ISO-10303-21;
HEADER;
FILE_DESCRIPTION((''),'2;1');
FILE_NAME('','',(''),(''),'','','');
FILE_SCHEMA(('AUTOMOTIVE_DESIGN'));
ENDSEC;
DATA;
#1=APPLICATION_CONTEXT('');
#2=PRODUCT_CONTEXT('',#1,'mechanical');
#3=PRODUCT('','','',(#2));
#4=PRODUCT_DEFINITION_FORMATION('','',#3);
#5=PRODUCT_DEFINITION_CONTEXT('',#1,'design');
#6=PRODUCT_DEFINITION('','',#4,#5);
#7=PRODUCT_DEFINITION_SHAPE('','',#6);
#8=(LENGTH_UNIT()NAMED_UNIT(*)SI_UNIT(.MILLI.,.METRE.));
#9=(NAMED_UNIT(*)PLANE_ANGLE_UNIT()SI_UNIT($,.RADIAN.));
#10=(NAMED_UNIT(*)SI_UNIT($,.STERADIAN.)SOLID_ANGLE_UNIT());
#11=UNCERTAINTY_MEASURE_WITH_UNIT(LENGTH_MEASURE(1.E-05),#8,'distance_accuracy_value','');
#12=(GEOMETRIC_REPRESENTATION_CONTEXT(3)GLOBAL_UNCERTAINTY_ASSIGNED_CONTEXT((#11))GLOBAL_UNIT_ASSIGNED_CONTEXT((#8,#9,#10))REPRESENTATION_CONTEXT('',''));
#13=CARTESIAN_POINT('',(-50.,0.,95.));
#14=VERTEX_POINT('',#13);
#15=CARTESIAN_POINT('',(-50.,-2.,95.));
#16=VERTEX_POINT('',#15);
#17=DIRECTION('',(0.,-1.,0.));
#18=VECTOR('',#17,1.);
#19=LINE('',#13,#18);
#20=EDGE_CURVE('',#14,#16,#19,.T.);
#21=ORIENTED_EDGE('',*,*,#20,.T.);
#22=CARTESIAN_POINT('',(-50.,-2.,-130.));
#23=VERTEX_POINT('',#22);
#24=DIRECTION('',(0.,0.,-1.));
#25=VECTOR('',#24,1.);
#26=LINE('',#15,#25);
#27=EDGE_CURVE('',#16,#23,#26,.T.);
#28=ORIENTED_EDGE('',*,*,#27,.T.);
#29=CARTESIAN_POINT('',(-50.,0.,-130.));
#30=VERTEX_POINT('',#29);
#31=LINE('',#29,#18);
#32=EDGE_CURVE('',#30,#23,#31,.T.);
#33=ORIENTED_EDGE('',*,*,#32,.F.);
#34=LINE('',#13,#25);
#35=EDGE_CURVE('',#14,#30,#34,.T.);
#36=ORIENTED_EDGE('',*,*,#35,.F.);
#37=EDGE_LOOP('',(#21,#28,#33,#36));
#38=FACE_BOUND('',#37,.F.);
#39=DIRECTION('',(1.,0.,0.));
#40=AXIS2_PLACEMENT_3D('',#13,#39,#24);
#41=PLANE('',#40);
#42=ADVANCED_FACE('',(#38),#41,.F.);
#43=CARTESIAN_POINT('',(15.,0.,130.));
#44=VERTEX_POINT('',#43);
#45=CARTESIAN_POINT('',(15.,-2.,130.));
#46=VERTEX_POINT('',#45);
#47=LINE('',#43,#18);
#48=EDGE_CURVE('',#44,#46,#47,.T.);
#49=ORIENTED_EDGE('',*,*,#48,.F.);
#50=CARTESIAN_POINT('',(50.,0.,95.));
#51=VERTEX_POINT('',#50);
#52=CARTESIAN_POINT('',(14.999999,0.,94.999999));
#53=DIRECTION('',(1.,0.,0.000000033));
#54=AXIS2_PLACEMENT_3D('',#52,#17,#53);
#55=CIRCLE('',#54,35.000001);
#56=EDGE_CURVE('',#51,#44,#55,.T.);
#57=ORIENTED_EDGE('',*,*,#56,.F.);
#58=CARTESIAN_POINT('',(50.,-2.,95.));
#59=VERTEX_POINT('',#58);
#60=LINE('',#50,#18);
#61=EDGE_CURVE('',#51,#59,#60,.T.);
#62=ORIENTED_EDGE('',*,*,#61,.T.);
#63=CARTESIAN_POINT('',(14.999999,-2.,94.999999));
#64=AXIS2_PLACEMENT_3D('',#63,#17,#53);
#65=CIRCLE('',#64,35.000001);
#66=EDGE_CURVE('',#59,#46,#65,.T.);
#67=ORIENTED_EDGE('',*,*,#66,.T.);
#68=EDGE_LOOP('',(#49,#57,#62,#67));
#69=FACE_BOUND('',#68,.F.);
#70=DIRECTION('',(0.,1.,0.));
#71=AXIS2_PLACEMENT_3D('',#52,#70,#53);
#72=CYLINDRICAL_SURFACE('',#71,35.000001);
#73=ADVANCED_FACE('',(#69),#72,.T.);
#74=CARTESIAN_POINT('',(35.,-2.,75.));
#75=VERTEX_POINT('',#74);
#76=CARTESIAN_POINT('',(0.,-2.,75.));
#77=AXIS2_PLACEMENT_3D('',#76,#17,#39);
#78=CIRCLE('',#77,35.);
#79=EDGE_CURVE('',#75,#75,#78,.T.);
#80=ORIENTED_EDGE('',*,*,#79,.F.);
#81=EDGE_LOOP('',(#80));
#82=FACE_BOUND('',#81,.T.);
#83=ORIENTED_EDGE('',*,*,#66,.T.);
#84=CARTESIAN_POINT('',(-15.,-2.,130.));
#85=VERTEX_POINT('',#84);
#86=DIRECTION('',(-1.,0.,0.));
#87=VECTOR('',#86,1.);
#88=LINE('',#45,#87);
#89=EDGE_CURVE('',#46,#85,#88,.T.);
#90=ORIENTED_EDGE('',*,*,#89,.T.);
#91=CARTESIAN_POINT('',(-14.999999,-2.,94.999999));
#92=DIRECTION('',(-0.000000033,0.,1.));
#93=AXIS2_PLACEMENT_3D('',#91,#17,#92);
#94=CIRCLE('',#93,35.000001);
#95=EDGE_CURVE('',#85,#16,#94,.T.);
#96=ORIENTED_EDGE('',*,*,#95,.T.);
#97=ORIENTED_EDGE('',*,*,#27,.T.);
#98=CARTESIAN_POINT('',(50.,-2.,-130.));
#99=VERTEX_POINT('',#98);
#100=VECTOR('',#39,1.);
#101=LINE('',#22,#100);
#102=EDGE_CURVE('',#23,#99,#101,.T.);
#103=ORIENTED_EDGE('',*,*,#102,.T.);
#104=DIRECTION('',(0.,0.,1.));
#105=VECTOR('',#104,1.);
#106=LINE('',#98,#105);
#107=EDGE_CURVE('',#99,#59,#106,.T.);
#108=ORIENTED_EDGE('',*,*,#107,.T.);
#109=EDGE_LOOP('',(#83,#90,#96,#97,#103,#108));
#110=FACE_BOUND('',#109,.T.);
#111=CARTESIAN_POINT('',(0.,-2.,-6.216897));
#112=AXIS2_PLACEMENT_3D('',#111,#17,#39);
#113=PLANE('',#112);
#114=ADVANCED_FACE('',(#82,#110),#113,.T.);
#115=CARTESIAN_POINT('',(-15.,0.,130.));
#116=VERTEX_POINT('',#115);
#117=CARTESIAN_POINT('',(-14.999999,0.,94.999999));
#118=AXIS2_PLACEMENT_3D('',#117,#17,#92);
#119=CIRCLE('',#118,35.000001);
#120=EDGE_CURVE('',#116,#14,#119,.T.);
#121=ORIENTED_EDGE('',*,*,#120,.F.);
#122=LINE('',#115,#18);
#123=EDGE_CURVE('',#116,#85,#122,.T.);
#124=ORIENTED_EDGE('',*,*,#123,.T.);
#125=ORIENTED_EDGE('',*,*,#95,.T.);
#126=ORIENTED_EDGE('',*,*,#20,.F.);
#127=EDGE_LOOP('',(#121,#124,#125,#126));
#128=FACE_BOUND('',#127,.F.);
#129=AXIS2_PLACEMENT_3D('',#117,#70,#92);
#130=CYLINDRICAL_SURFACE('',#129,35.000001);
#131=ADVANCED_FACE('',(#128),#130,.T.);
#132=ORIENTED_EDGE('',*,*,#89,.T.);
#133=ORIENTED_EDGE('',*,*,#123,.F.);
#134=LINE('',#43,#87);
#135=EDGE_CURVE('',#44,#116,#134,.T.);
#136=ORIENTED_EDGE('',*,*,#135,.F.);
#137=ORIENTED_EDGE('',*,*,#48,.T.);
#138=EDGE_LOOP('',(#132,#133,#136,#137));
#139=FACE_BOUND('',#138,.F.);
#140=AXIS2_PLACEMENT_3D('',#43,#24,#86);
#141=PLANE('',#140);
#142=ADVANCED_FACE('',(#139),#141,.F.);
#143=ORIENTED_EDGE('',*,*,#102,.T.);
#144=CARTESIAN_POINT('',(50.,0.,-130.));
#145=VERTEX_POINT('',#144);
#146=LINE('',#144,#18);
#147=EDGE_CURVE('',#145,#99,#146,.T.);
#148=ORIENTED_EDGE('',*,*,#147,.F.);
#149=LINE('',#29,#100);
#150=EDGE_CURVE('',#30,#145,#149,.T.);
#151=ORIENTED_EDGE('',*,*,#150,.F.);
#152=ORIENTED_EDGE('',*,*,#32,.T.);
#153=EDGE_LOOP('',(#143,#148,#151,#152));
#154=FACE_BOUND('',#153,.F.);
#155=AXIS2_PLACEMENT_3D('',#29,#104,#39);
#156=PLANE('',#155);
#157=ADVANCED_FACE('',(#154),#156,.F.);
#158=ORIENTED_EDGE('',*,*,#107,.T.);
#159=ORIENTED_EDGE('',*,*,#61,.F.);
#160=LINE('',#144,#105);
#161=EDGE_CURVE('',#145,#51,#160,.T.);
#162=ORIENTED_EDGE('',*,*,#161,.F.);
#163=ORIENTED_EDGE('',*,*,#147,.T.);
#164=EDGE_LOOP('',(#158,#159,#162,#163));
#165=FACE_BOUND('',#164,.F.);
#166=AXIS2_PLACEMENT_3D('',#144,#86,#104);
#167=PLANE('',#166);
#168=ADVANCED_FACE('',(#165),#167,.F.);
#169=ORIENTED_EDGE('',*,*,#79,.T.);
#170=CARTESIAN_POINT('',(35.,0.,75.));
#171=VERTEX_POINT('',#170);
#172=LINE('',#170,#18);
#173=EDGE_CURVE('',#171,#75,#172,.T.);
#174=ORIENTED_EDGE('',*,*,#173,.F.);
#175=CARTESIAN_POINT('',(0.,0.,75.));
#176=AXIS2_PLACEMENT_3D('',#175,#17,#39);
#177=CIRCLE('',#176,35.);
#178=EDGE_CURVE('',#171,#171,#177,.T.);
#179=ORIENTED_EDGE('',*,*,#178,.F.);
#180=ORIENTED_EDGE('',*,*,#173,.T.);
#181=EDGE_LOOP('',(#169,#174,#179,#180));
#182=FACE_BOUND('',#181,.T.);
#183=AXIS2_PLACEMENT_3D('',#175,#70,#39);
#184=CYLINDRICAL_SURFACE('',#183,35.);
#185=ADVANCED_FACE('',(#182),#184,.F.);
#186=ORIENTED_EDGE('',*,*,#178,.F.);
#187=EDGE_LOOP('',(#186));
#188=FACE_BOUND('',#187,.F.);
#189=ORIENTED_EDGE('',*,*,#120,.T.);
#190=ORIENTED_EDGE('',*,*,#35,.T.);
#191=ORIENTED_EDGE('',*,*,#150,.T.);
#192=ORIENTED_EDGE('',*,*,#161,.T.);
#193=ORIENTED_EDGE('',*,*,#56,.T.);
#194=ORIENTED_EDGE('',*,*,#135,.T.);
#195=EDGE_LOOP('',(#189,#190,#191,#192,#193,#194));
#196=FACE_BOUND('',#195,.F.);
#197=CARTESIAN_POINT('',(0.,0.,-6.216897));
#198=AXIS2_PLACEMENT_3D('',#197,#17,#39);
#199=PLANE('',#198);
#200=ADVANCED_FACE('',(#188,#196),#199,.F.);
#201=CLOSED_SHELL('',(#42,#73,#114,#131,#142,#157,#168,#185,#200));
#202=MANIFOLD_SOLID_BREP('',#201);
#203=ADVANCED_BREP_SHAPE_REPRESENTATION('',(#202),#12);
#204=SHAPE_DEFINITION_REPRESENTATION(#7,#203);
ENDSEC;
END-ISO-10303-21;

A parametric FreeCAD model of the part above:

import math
import FreeCAD as App
import Part
import Sketcher
Q = App.Units.Quantity

doc = App.newDocument("Part")
body = doc.addObject("PartDesign::Body", "Body")

# Sketch on XZ plane
sketch1 = body.newObject("Sketcher::SketchObject", "Sketch")
sketch1.AttachmentSupport = (doc.getObject("XZ_Plane"), [""])
sketch1.MapMode = "FlatFace"
sketch1.addGeometry([
    Part.LineSegment(App.Vector(15, 130, 0), App.Vector(-15, 130, 0)),  # 0
    Part.ArcOfCircle(Part.Circle(App.Vector(-15, 95, 0), App.Vector(0, 0, 1), 35), math.radians(90), math.radians(180)),  # 1
    Part.LineSegment(App.Vector(-50, 95, 0), App.Vector(-50, -130, 0)),  # 2
    Part.LineSegment(App.Vector(-50, -130, 0), App.Vector(50, -130, 0)),  # 3
    Part.LineSegment(App.Vector(50, -130, 0), App.Vector(50, 95, 0)),  # 4
    Part.ArcOfCircle(Part.Circle(App.Vector(15, 95, 0), App.Vector(0, 0, 1), 35), math.radians(0), math.radians(90)),  # 5
    Part.Circle(App.Vector(0, 75, 0), App.Vector(0, 0, 1), 35),  # 6
], False)
sketch1.addConstraint([
    Sketcher.Constraint("Tangent", 0, 2, 1, 1),
    Sketcher.Constraint("Tangent", 1, 2, 2, 1),
    Sketcher.Constraint("Coincident", 2, 2, 3, 1),
    Sketcher.Constraint("Coincident", 3, 2, 4, 1),
    Sketcher.Constraint("Tangent", 4, 2, 5, 1),
    Sketcher.Constraint("Tangent", 5, 2, 0, 1),
    Sketcher.Constraint("Horizontal", 0),
    Sketcher.Constraint("Vertical", 2),
    Sketcher.Constraint("Horizontal", 3),
    Sketcher.Constraint("Vertical", 4),
    Sketcher.Constraint("Equal", 1, 5),
    Sketcher.Constraint("Equal", 5, 6),
    Sketcher.Constraint("PointOnObject", 6, 3, -2),
    Sketcher.Constraint("Diameter", 6, Q("70 mm")),
    Sketcher.Constraint("DistanceX", 0, 2, 0, 1, Q("30 mm")),
    Sketcher.Constraint("DistanceY", 2, 2, 2, 1, Q("225 mm")),
    Sketcher.Constraint("DistanceX", 1, 3, -1, 1, Q("14.999999 mm")),
    Sketcher.Constraint("DistanceY", -1, 1, 1, 3, Q("94.999999 mm")),
    Sketcher.Constraint("DistanceY", -1, 1, 6, 3, Q("75 mm")),
])
pad1 = body.newObject("PartDesign::Pad", "Pad")
pad1.Profile = sketch1
pad1.Length = 2

doc.recompute()
